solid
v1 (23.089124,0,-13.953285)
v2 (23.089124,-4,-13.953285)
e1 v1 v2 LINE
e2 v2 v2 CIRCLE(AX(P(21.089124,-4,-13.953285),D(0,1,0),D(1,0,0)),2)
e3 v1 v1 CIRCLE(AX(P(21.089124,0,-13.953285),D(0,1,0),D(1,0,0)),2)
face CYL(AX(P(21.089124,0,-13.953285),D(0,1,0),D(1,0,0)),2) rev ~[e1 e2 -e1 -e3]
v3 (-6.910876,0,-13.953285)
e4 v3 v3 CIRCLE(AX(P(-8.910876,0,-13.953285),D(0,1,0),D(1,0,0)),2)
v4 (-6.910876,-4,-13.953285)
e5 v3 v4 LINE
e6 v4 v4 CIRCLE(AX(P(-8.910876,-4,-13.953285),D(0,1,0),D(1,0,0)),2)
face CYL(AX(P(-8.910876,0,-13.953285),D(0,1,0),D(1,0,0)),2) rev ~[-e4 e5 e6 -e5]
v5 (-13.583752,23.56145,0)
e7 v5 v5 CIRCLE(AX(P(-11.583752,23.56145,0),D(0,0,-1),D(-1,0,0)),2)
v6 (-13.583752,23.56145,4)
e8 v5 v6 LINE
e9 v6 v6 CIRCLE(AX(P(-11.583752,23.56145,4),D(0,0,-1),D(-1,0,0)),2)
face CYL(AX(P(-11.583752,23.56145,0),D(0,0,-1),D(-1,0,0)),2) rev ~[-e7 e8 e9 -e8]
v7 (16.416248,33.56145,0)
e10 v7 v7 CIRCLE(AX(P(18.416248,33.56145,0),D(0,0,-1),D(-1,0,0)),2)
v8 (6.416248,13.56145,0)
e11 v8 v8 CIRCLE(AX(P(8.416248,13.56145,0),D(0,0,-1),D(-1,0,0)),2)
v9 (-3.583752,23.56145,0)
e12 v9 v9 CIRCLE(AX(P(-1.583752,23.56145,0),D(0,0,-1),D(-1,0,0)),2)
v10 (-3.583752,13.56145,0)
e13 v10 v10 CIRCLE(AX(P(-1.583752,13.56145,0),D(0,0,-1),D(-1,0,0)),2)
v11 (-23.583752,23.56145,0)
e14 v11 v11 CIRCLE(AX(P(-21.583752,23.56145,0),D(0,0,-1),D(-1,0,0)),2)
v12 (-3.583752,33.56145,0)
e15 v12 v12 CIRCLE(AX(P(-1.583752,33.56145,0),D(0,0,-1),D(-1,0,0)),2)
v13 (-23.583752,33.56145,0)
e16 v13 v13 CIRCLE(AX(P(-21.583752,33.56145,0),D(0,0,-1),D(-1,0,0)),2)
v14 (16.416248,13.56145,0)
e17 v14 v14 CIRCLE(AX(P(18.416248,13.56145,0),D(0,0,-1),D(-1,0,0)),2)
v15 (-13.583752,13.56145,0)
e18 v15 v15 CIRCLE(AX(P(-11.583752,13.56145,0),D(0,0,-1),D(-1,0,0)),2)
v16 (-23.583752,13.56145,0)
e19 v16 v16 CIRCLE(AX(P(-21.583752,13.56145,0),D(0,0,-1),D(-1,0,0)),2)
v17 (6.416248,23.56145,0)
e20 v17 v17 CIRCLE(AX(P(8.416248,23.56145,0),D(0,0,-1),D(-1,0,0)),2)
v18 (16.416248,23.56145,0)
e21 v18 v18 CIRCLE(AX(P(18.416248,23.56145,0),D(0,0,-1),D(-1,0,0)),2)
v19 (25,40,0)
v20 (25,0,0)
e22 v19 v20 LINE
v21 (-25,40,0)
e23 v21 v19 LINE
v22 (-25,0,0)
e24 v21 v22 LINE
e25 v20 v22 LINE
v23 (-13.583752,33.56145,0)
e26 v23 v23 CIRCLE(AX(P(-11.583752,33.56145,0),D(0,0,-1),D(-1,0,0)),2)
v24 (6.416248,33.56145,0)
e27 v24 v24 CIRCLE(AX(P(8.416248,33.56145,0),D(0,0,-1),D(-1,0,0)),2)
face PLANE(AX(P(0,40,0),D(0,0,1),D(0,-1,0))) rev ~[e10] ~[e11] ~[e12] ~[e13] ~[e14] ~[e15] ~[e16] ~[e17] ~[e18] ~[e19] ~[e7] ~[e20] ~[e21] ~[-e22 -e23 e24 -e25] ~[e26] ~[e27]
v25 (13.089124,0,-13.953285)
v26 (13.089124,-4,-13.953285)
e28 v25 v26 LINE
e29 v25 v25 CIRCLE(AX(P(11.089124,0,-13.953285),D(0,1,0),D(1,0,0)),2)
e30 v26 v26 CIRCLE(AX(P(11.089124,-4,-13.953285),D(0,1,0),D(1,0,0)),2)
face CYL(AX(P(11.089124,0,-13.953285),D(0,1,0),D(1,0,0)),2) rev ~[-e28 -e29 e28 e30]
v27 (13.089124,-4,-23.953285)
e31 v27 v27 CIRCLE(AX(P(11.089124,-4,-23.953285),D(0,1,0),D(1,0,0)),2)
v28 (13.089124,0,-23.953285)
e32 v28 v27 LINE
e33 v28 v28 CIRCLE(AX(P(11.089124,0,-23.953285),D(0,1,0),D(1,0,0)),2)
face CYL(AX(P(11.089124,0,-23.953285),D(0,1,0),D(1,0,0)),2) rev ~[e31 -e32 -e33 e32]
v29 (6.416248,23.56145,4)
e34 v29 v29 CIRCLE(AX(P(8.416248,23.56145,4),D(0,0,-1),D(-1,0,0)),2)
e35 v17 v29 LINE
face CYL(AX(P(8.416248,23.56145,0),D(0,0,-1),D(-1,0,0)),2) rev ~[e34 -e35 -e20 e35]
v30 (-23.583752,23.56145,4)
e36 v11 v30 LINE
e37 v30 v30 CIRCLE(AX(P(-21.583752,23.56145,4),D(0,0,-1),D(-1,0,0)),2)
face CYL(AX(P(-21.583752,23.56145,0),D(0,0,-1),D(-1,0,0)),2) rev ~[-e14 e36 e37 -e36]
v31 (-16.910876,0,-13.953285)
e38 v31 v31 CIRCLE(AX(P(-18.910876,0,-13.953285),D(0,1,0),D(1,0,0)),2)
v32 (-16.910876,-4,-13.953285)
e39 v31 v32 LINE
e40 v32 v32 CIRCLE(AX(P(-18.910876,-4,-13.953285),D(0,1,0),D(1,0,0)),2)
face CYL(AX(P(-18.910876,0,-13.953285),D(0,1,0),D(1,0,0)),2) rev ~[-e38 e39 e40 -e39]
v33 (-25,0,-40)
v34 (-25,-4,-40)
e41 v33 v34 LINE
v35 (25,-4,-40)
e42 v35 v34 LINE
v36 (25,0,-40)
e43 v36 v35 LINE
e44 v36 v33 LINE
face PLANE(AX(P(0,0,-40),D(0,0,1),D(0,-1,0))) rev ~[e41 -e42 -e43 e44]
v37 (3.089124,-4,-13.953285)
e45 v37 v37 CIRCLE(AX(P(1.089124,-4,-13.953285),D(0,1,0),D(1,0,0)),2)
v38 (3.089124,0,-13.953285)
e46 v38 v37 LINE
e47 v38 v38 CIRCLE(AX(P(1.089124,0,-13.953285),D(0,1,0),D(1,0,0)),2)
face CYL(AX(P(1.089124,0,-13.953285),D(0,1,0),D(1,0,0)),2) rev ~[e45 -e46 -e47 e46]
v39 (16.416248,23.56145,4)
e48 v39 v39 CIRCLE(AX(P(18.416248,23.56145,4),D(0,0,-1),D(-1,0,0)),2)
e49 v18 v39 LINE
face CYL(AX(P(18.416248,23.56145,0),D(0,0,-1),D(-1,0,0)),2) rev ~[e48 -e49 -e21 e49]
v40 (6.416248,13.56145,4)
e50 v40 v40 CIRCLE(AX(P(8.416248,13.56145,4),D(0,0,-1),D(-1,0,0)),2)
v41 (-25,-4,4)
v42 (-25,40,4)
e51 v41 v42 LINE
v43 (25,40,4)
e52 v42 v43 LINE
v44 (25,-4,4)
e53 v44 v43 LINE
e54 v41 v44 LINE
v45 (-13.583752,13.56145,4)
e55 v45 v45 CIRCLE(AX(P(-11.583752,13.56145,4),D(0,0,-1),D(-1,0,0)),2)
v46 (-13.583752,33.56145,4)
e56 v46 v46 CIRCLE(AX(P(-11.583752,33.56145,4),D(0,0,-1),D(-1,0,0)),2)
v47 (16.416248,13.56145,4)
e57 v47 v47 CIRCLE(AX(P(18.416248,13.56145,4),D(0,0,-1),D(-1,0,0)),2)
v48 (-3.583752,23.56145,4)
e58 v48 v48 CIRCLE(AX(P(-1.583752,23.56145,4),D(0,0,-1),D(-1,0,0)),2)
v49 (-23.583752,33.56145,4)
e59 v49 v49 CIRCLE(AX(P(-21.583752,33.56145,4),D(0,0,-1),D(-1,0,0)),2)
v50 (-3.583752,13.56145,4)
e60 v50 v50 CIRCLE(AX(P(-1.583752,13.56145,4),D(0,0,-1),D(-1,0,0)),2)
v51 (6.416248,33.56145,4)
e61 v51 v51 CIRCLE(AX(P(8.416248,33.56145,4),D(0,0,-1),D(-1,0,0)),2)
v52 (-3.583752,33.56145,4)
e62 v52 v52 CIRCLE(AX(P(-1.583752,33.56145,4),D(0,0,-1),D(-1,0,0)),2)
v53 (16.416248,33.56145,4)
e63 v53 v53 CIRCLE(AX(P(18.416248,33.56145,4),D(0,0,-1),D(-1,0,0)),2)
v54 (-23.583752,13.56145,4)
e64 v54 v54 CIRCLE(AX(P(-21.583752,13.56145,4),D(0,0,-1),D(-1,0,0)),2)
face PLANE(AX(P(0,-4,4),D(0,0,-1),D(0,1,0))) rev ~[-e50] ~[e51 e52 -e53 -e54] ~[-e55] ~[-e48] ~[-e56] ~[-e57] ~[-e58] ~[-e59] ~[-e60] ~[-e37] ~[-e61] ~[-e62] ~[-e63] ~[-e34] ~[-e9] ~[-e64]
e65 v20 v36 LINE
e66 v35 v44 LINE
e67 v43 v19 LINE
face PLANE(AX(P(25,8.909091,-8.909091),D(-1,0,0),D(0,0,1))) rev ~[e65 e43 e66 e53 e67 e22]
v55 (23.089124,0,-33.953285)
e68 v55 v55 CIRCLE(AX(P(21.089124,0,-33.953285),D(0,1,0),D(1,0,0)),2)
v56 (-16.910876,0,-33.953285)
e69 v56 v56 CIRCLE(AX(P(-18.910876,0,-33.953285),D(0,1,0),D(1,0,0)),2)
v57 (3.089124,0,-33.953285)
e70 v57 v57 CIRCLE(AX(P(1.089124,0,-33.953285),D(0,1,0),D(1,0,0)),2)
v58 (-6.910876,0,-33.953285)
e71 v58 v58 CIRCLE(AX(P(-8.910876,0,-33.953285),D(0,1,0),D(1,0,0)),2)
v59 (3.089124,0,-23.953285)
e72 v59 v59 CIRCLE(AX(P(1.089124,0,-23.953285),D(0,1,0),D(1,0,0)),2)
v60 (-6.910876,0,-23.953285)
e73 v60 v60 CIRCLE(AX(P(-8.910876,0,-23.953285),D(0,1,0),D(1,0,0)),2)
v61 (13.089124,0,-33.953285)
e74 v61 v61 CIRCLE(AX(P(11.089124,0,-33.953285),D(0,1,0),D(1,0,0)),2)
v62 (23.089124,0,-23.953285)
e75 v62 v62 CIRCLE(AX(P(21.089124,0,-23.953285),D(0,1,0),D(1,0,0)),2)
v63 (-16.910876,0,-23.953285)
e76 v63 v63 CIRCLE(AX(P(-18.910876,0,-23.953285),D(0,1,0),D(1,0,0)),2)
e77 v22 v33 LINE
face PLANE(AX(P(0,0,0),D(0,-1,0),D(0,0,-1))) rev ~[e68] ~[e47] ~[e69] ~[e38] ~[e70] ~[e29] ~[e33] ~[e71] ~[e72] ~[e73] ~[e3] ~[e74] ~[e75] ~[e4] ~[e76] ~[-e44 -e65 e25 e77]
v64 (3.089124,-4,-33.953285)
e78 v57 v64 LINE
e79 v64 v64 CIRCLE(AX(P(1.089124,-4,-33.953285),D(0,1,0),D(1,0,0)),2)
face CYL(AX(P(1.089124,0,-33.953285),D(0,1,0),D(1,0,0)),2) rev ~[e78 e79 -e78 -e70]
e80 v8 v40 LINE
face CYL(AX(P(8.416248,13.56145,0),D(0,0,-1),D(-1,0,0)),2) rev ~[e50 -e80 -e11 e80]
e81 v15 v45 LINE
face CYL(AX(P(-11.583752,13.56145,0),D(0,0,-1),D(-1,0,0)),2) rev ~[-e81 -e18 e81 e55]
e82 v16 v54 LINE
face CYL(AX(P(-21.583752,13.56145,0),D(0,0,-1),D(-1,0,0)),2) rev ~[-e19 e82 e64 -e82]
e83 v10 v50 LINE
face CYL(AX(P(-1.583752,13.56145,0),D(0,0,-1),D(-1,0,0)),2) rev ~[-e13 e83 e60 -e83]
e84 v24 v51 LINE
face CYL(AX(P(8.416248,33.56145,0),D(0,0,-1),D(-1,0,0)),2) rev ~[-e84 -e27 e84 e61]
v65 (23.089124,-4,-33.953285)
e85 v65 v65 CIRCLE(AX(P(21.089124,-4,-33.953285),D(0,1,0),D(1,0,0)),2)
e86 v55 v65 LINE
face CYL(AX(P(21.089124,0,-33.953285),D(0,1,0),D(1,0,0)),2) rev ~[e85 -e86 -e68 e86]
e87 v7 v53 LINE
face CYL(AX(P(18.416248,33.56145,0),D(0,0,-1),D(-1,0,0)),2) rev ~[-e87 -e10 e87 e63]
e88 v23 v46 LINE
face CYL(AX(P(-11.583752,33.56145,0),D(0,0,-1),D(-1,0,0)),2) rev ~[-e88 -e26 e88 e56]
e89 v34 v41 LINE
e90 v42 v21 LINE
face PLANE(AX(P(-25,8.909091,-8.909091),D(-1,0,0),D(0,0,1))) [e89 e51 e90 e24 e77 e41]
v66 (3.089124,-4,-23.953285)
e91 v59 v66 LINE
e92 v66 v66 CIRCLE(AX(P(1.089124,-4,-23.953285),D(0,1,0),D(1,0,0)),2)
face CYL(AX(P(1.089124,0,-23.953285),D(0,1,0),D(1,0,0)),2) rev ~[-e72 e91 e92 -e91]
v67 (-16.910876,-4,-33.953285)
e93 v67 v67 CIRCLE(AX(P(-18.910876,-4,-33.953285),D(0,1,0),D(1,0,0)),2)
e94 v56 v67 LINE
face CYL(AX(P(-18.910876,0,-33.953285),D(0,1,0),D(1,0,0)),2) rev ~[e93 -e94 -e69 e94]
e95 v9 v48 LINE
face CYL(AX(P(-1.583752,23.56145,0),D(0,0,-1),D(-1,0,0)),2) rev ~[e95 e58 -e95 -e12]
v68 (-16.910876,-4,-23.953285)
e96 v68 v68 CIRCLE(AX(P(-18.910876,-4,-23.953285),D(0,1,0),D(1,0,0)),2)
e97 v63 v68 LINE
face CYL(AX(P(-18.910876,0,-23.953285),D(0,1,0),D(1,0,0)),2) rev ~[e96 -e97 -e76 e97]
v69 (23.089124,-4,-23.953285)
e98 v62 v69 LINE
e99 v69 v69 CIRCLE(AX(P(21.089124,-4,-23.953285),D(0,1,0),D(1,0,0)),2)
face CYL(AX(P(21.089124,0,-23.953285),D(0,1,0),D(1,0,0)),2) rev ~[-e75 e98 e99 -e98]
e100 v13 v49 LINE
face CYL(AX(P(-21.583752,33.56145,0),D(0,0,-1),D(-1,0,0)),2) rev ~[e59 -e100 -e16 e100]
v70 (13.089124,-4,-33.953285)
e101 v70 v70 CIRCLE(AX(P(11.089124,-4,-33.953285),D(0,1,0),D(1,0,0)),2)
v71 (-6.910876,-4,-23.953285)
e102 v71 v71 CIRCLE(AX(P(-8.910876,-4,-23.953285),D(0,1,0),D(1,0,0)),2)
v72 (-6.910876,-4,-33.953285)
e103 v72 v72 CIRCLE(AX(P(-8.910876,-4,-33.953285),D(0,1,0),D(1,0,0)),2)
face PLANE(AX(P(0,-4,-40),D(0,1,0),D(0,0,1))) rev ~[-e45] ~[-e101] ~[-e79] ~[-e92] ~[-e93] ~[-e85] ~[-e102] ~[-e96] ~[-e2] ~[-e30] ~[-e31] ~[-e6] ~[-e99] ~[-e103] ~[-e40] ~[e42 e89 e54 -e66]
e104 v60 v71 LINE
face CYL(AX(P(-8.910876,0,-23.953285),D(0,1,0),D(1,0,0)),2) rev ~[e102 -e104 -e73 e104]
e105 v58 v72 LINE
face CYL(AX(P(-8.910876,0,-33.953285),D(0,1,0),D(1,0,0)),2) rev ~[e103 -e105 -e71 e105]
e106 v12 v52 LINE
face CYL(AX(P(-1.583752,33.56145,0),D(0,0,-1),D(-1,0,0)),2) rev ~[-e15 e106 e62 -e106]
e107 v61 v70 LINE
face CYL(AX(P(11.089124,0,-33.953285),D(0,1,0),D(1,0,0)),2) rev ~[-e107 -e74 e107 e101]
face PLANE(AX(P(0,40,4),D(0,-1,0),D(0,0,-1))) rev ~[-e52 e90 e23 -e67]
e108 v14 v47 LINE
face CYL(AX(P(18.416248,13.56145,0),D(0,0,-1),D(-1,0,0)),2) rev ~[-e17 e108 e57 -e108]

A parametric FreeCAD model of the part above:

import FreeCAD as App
import Part
import Sketcher

doc = App.newDocument("Part")
body = doc.addObject("PartDesign::Body", "Body")

# Sketch on YZ plane
sketch1 = body.newObject("Sketcher::SketchObject", "Sketch")
sketch1.AttachmentSupport = (doc.getObject("YZ_Plane"), [""])
sketch1.MapMode = "FlatFace"
sketch1.addGeometry(Part.LineSegment(App.Vector(0, 0, 0), App.Vector(40, 0, 0)), False)
sketch1.addGeometry(Part.LineSegment(App.Vector(40, 0, 0), App.Vector(40, 4, 0)), False)
sketch1.addGeometry(Part.LineSegment(App.Vector(40, 4, 0), App.Vector(-4, 4, 0)), False)
sketch1.addGeometry(Part.LineSegment(App.Vector(-4, 4, 0), App.Vector(-4, -40, 0)), False)
sketch1.addGeometry(Part.LineSegment(App.Vector(-4, -40, 0), App.Vector(0, -40, 0)), False)
sketch1.addGeometry(Part.LineSegment(App.Vector(0, -40, 0), App.Vector(0, 0, 0)), False)
sketch1.addConstraint(Sketcher.Constraint("Coincident", 0, 2, 1, 1))
sketch1.addConstraint(Sketcher.Constraint("Coincident", 1, 2, 2, 1))
sketch1.addConstraint(Sketcher.Constraint("Coincident", 2, 2, 3, 1))
sketch1.addConstraint(Sketcher.Constraint("Coincident", 3, 2, 4, 1))
sketch1.addConstraint(Sketcher.Constraint("Coincident", 4, 2, 5, 1))
sketch1.addConstraint(Sketcher.Constraint("Coincident", 5, 2, 0, 1))
sketch1.addConstraint(Sketcher.Constraint("Horizontal", 0))
sketch1.addConstraint(Sketcher.Constraint("Vertical", 1))
sketch1.addConstraint(Sketcher.Constraint("Horizontal", 2))
sketch1.addConstraint(Sketcher.Constraint("Vertical", 3))
sketch1.addConstraint(Sketcher.Constraint("Horizontal", 4))
sketch1.addConstraint(Sketcher.Constraint("Vertical", 5))
sketch1.addConstraint(Sketcher.Constraint("Coincident", 5, 2, -1, 1))
sketch1.addConstraint(Sketcher.Constraint("Equal", 4, 1))
sketch1.addConstraint(Sketcher.Constraint("Equal", 2, 3))
sketch1.addConstraint(Sketcher.Constraint("DistanceX", 0, 1, 0, 2, 40.0))
sketch1.addConstraint(Sketcher.Constraint("DistanceX", 2, 2, 2, 1, 44.0))
pad1 = body.newObject("PartDesign::Pad", "Pad")
pad1.Profile = sketch1
pad1.Length = 50
pad1.Midplane = True

# Sketch on XZ plane
sketch2 = body.newObject("Sketcher::SketchObject", "Sketch001")
sketch2.AttachmentSupport = (doc.getObject("XZ_Plane"), [""])
sketch2.MapMode = "FlatFace"
sketch2.addGeometry(Part.Circle(App.Vector(-18.9, -34, 0), App.Vector(0, 0, 1), 2), False)
sketch2.addGeometry(Part.Circle(App.Vector(-8.9, -34, 0), App.Vector(0, 0, 1), 2), False)
sketch2.addGeometry(Part.Circle(App.Vector(1.1, -34, 0), App.Vector(0, 0, 1), 2), False)
sketch2.addGeometry(Part.Circle(App.Vector(11.1, -34, 0), App.Vector(0, 0, 1), 2), False)
sketch2.addGeometry(Part.Circle(App.Vector(21.1, -34, 0), App.Vector(0, 0, 1), 2), False)
sketch2.addGeometry(Part.Circle(App.Vector(-8.9, -24, 0), App.Vector(0, 0, 1), 2), False)
sketch2.addGeometry(Part.Circle(App.Vector(1.1, -24, 0), App.Vector(0, 0, 1), 2), False)
sketch2.addGeometry(Part.Circle(App.Vector(11.1, -24, 0), App.Vector(0, 0, 1), 2), False)
sketch2.addGeometry(Part.Circle(App.Vector(21.1, -24, 0), App.Vector(0, 0, 1), 2), False)
sketch2.addGeometry(Part.Circle(App.Vector(-8.9, -14, 0), App.Vector(0, 0, 1), 2), False)
sketch2.addGeometry(Part.Circle(App.Vector(1.1, -14, 0), App.Vector(0, 0, 1), 2), False)
sketch2.addGeometry(Part.Circle(App.Vector(11.1, -14, 0), App.Vector(0, 0, 1), 2), False)
sketch2.addGeometry(Part.Circle(App.Vector(21.1, -14, 0), App.Vector(0, 0, 1), 2), False)
sketch2.addGeometry(Part.Circle(App.Vector(-18.9, -24, 0), App.Vector(0, 0, 1), 2), False)
sketch2.addGeometry(Part.Circle(App.Vector(-18.9, -14, 0), App.Vector(0, 0, 1), 2), False)
sketch2.addConstraint(Sketcher.Constraint("Equal", 0, 1))
sketch2.addConstraint(Sketcher.Constraint("Equal", 1, 2))
sketch2.addConstraint(Sketcher.Constraint("Equal", 2, 3))
sketch2.addConstraint(Sketcher.Constraint("Equal", 3, 4))
sketch2.addConstraint(Sketcher.Constraint("Equal", 4, 5))
sketch2.addConstraint(Sketcher.Constraint("Equal", 5, 6))
sketch2.addConstraint(Sketcher.Constraint("Equal", 6, 7))
sketch2.addConstraint(Sketcher.Constraint("Equal", 7, 8))
sketch2.addConstraint(Sketcher.Constraint("Equal", 8, 9))
sketch2.addConstraint(Sketcher.Constraint("Equal", 9, 10))
sketch2.addConstraint(Sketcher.Constraint("Equal", 10, 11))
sketch2.addConstraint(Sketcher.Constraint("Equal", 11, 12))
sketch2.addConstraint(Sketcher.Constraint("Equal", 12, 13))
sketch2.addConstraint(Sketcher.Constraint("Equal", 13, 14))
sketch2.addConstraint(Sketcher.Constraint("Horizontal", 0, 3, 1, 3))
sketch2.addConstraint(Sketcher.Constraint("Horizontal", 1, 3, 2, 3))
sketch2.addConstraint(Sketcher.Constraint("Horizontal", 2, 3, 3, 3))
sketch2.addConstraint(Sketcher.Constraint("Horizontal", 3, 3, 4, 3))
sketch2.addConstraint(Sketcher.Constraint("Horizontal", 5, 3, 6, 3))
sketch2.addConstraint(Sketcher.Constraint("Horizontal", 6, 3, 7, 3))
sketch2.addConstraint(Sketcher.Constraint("Horizontal", 7, 3, 8, 3))
sketch2.addConstraint(Sketcher.Constraint("Horizontal", 9, 3, 10, 3))
sketch2.addConstraint(Sketcher.Constraint("Horizontal", 10, 3, 11, 3))
sketch2.addConstraint(Sketcher.Constraint("Horizontal", 11, 3, 12, 3))
sketch2.addConstraint(Sketcher.Constraint("Horizontal", 8, 3, 13, 3))
sketch2.addConstraint(Sketcher.Constraint("Horizontal", 12, 3, 14, 3))
sketch2.addConstraint(Sketcher.Constraint("Vertical", 1, 3, 5, 3))
sketch2.addConstraint(Sketcher.Constraint("Vertical", 2, 3, 6, 3))
sketch2.addConstraint(Sketcher.Constraint("Vertical", 3, 3, 7, 3))
sketch2.addConstraint(Sketcher.Constraint("Vertical", 4, 3, 8, 3))
sketch2.addConstraint(Sketcher.Constraint("Vertical", 5, 3, 9, 3))
sketch2.addConstraint(Sketcher.Constraint("Vertical", 6, 3, 10, 3))
sketch2.addConstraint(Sketcher.Constraint("Vertical", 7, 3, 11, 3))
sketch2.addConstraint(Sketcher.Constraint("Vertical", 8, 3, 12, 3))
sketch2.addConstraint(Sketcher.Constraint("Vertical", 0, 3, 13, 3))
sketch2.addConstraint(Sketcher.Constraint("Vertical", 13, 3, 14, 3))
sketch2.addConstraint(Sketcher.Constraint("Diameter", 0, 4.0))
sketch2.addConstraint(Sketcher.Constraint("DistanceX", 0, 3, 1, 3, 10.0))
sketch2.addConstraint(Sketcher.Constraint("DistanceX", 1, 3, 2, 3, 10.0))
sketch2.addConstraint(Sketcher.Constraint("DistanceX", 2, 3, 3, 3, 10.0))
sketch2.addConstraint(Sketcher.Constraint("DistanceX", 3, 3, 4, 3, 10.0))
sketch2.addConstraint(Sketcher.Constraint("DistanceY", 1, 3, 5, 3, 10.0))
sketch2.addConstraint(Sketcher.Constraint("DistanceY", 5, 3, 9, 3, 10.0))
sketch2.addConstraint(Sketcher.Constraint("DistanceX", 0, 3, -1, 1, 18.910876))
sketch2.addConstraint(Sketcher.Constraint("DistanceY", 0, 3, -1, 1, 33.953285))
pocket1 = body.newObject("PartDesign::Pocket", "Pocket")
pocket1.Profile = sketch2
pocket1.Type = "ThroughAll"
pocket1.Reversed = True

# Sketch on XY plane
sketch3 = body.newObject("Sketcher::SketchObject", "Sketch002")
sketch3.AttachmentSupport = (doc.getObject("XY_Plane"), [""])
sketch3.MapMode = "FlatFace"
sketch3.addGeometry(Part.Circle(App.Vector(18.4, 33.6, 0), App.Vector(0, 0, 1), 2), False)
sketch3.addGeometry(Part.Circle(App.Vector(8.4, 33.6, 0), App.Vector(0, 0, 1), 2), False)
sketch3.addGeometry(Part.Circle(App.Vector(-1.6, 33.6, 0), App.Vector(0, 0, 1), 2), False)
sketch3.addGeometry(Part.Circle(App.Vector(-11.6, 33.6, 0), App.Vector(0, 0, 1), 2), False)
sketch3.addGeometry(Part.Circle(App.Vector(-21.6, 33.6, 0), App.Vector(0, 0, 1), 2), False)
sketch3.addGeometry(Part.Circle(App.Vector(8.4, 23.6, 0), App.Vector(0, 0, 1), 2), False)
sketch3.addGeometry(Part.Circle(App.Vector(-1.6, 23.6, 0), App.Vector(0, 0, 1), 2), False)
sketch3.addGeometry(Part.Circle(App.Vector(-11.6, 23.6, 0), App.Vector(0, 0, 1), 2), False)
sketch3.addGeometry(Part.Circle(App.Vector(-21.6, 23.6, 0), App.Vector(0, 0, 1), 2), False)
sketch3.addGeometry(Part.Circle(App.Vector(8.4, 13.6, 0), App.Vector(0, 0, 1), 2), False)
sketch3.addGeometry(Part.Circle(App.Vector(-1.6, 13.6, 0), App.Vector(0, 0, 1), 2), False)
sketch3.addGeometry(Part.Circle(App.Vector(-11.6, 13.6, 0), App.Vector(0, 0, 1), 2), False)
sketch3.addGeometry(Part.Circle(App.Vector(-21.6, 13.6, 0), App.Vector(0, 0, 1), 2), False)
sketch3.addGeometry(Part.Circle(App.Vector(18.4, 23.6, 0), App.Vector(0, 0, 1), 2), False)
sketch3.addGeometry(Part.Circle(App.Vector(18.4, 13.6, 0), App.Vector(0, 0, 1), 2), False)
sketch3.addConstraint(Sketcher.Constraint("Equal", 0, 1))
sketch3.addConstraint(Sketcher.Constraint("Equal", 1, 2))
sketch3.addConstraint(Sketcher.Constraint("Equal", 2, 3))
sketch3.addConstraint(Sketcher.Constraint("Equal", 3, 4))
sketch3.addConstraint(Sketcher.Constraint("Equal", 4, 5))
sketch3.addConstraint(Sketcher.Constraint("Equal", 5, 6))
sketch3.addConstraint(Sketcher.Constraint("Equal", 6, 7))
sketch3.addConstraint(Sketcher.Constraint("Equal", 7, 8))
sketch3.addConstraint(Sketcher.Constraint("Equal", 8, 9))
sketch3.addConstraint(Sketcher.Constraint("Equal", 9, 10))
sketch3.addConstraint(Sketcher.Constraint("Equal", 10, 11))
sketch3.addConstraint(Sketcher.Constraint("Equal", 11, 12))
sketch3.addConstraint(Sketcher.Constraint("Equal", 12, 13))
sketch3.addConstraint(Sketcher.Constraint("Equal", 13, 14))
sketch3.addConstraint(Sketcher.Constraint("Horizontal", 0, 3, 1, 3))
sketch3.addConstraint(Sketcher.Constraint("Horizontal", 1, 3, 2, 3))
sketch3.addConstraint(Sketcher.Constraint("Horizontal", 2, 3, 3, 3))
sketch3.addConstraint(Sketcher.Constraint("Horizontal", 3, 3, 4, 3))
sketch3.addConstraint(Sketcher.Constraint("Horizontal", 5, 3, 6, 3))
sketch3.addConstraint(Sketcher.Constraint("Horizontal", 6, 3, 7, 3))
sketch3.addConstraint(Sketcher.Constraint("Horizontal", 7, 3, 8, 3))
sketch3.addConstraint(Sketcher.Constraint("Horizontal", 9, 3, 10, 3))
sketch3.addConstraint(Sketcher.Constraint("Horizontal", 10, 3, 11, 3))
sketch3.addConstraint(Sketcher.Constraint("Horizontal", 11, 3, 12, 3))
sketch3.addConstraint(Sketcher.Constraint("Horizontal", 8, 3, 13, 3))
sketch3.addConstraint(Sketcher.Constraint("Horizontal", 12, 3, 14, 3))
sketch3.addConstraint(Sketcher.Constraint("Vertical", 1, 3, 5, 3))
sketch3.addConstraint(Sketcher.Constraint("Vertical", 2, 3, 6, 3))
sketch3.addConstraint(Sketcher.Constraint("Vertical", 3, 3, 7, 3))
sketch3.addConstraint(Sketcher.Constraint("Vertical", 4, 3, 8, 3))
sketch3.addConstraint(Sketcher.Constraint("Vertical", 5, 3, 9, 3))
sketch3.addConstraint(Sketcher.Constraint("Vertical", 6, 3, 10, 3))
sketch3.addConstraint(Sketcher.Constraint("Vertical", 7, 3, 11, 3))
sketch3.addConstraint(Sketcher.Constraint("Vertical", 8, 3, 12, 3))
sketch3.addConstraint(Sketcher.Constraint("Vertical", 0, 3, 13, 3))
sketch3.addConstraint(Sketcher.Constraint("Vertical", 13, 3, 14, 3))
sketch3.addConstraint(Sketcher.Constraint("Diameter", 0, 4.0))
sketch3.addConstraint(Sketcher.Constraint("DistanceX", 1, 3, 0, 3, 10.0))
sketch3.addConstraint(Sketcher.Constraint("DistanceX", 2, 3, 1, 3, 10.0))
sketch3.addConstraint(Sketcher.Constraint("DistanceX", 3, 3, 2, 3, 10.0))
sketch3.addConstraint(Sketcher.Constraint("DistanceX", 4, 3, 3, 3, 10.0))
sketch3.addConstraint(Sketcher.Constraint("DistanceY", 5, 3, 1, 3, 10.0))
sketch3.addConstraint(Sketcher.Constraint("DistanceY", 9, 3, 5, 3, 10.0))
sketch3.addConstraint(Sketcher.Constraint("DistanceX", -1, 1, 0, 3, 18.416248))
sketch3.addConstraint(Sketcher.Constraint("DistanceY", -1, 1, 0, 3, 33.56145))
pocket2 = body.newObject("PartDesign::Pocket", "Pocket001")
pocket2.Profile = sketch3
pocket2.Type = "ThroughAll"
pocket2.Reversed = True

doc.recompute()
